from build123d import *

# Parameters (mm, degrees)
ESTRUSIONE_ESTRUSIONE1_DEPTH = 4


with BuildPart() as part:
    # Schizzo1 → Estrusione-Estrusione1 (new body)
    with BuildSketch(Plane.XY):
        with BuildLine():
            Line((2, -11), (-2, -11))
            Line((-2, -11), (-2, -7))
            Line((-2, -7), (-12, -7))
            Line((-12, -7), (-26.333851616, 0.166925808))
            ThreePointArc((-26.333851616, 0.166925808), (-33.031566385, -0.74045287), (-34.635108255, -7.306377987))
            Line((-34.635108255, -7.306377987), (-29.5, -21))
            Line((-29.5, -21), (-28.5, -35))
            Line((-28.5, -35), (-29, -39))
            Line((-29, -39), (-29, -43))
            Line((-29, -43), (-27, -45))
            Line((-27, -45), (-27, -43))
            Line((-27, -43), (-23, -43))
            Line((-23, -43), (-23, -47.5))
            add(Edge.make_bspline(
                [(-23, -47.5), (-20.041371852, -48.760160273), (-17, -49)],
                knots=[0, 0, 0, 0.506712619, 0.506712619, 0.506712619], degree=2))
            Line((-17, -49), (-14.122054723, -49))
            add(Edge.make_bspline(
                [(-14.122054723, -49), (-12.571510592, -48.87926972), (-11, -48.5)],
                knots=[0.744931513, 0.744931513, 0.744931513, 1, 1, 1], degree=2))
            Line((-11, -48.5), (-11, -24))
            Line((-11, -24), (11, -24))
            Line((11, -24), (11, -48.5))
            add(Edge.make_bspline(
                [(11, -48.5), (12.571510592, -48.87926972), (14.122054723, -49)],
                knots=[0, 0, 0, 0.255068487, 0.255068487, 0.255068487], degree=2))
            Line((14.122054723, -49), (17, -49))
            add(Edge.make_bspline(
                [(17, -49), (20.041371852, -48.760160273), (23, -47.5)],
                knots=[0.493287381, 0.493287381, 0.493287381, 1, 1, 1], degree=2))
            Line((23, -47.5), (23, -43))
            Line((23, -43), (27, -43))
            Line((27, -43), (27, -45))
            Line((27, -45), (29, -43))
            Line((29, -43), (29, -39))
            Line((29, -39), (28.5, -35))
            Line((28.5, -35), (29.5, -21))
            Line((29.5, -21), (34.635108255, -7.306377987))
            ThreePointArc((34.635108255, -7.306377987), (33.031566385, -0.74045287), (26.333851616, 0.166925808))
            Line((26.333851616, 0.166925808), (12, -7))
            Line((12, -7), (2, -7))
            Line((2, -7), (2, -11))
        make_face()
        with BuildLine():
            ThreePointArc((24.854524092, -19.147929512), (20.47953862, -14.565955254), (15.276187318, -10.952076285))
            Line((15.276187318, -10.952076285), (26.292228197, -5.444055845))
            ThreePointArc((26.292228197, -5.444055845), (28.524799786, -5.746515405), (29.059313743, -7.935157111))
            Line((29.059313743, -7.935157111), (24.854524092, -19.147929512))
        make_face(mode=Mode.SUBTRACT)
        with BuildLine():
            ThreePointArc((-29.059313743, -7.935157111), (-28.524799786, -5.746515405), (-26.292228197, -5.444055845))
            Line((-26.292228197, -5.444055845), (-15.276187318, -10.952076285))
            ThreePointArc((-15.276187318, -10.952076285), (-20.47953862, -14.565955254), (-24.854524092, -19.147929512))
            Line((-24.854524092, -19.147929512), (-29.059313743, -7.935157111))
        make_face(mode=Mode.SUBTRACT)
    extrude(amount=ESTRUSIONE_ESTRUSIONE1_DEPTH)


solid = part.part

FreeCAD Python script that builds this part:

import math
import FreeCAD as App
import Part
import Sketcher
from FreeCAD import Vector
Q = App.Units.Quantity

doc = App.newDocument("Part")
params = doc.addObject("Spreadsheet::Sheet", "Params")
for row, (alias, value) in enumerate([
    ("sketch1_radius", "6 mm"),
    ("sketch1_radius2", "6 mm"),
    ("sketch1_radius3", "2 mm"),
    ("sketch1_radius4", "2 mm"),
    ("sketch1_radius5", "31.5 mm"),
    ("pad1_length", "4 mm"),
], start=1):
    params.set(f"A{row}", alias)
    params.set(f"B{row}", "=" + value)
    params.setAlias(f"B{row}", alias)

body = doc.addObject("PartDesign::Body", "Body")

sketch1 = body.newObject("Sketcher::SketchObject", "Sketch")
sketch1.AttachmentSupport = (doc.getObject("XY_Plane"), [""])
sketch1.MapMode = "FlatFace"
sketch1.addGeometry([
    Part.LineSegment(Vector(2, -11, 0), Vector(-2, -11, 0)),
    Part.LineSegment(Vector(-2, -11, 0), Vector(-2, -7, 0)),
    Part.LineSegment(Vector(-2, -7, 0), Vector(-12, -7, 0)),
    Part.LineSegment(Vector(-12, -7, 0), Vector(-26.333852, 0.166926, 0)),
    Part.ArcOfCircle(Part.Circle(Vector(-29.017133, -5.199637, 0), Vector(0, 0, 1), 6), math.radians(63.434949), math.radians(200.556045)),
    Part.LineSegment(Vector(-34.635108, -7.306378, 0), Vector(-29.5, -21, 0)),
    Part.LineSegment(Vector(-29.5, -21, 0), Vector(-28.5, -35, 0)),
    Part.LineSegment(Vector(-28.5, -35, 0), Vector(-29, -39, 0)),
    Part.LineSegment(Vector(-29, -39, 0), Vector(-29, -43, 0)),
    Part.LineSegment(Vector(-29, -43, 0), Vector(-27, -45, 0)),
    Part.LineSegment(Vector(-27, -45, 0), Vector(-27, -43, 0)),
    Part.LineSegment(Vector(-27, -43, 0), Vector(-23, -43, 0)),
    Part.LineSegment(Vector(-23, -43, 0), Vector(-23, -47.5, 0)),
    Part.BSplineCurve([Vector(-23, -47.5, 0), Vector(-20.041372, -48.76016, 0), Vector(-17, -49, 0)], [3, 3], [0, 0.506712619], False, 2, [1, 1, 1], False),
    Part.LineSegment(Vector(-17, -49, 0), Vector(-14.122055, -49, 0)),
    Part.BSplineCurve([Vector(-14.122055, -49, 0), Vector(-12.571511, -48.87927, 0), Vector(-11, -48.5, 0)], [3, 3], [0.744931513, 1], False, 2, [1, 1, 1], False),
    Part.LineSegment(Vector(-11, -48.5, 0), Vector(-11, -24, 0)),
    Part.LineSegment(Vector(-11, -24, 0), Vector(11, -24, 0)),
    Part.LineSegment(Vector(11, -24, 0), Vector(11, -48.5, 0)),
    Part.BSplineCurve([Vector(11, -48.5, 0), Vector(12.571511, -48.87927, 0), Vector(14.122055, -49, 0)], [3, 3], [0, 0.255068487], False, 2, [1, 1, 1], False),
    Part.LineSegment(Vector(14.122055, -49, 0), Vector(17, -49, 0)),
    Part.BSplineCurve([Vector(17, -49, 0), Vector(20.041372, -48.76016, 0), Vector(23, -47.5, 0)], [3, 3], [0.493287381, 1], False, 2, [1, 1, 1], False),
    Part.LineSegment(Vector(23, -47.5, 0), Vector(23, -43, 0)),
    Part.LineSegment(Vector(23, -43, 0), Vector(27, -43, 0)),
    Part.LineSegment(Vector(27, -43, 0), Vector(27, -45, 0)),
    Part.LineSegment(Vector(27, -45, 0), Vector(29, -43, 0)),
    Part.LineSegment(Vector(29, -43, 0), Vector(29, -39, 0)),
    Part.LineSegment(Vector(29, -39, 0), Vector(28.5, -35, 0)),
    Part.LineSegment(Vector(28.5, -35, 0), Vector(29.5, -21, 0)),
    Part.LineSegment(Vector(29.5, -21, 0), Vector(34.635108, -7.306378, 0)),
    Part.ArcOfCircle(Part.Circle(Vector(29.017133, -5.199637, 0), Vector(0, 0, 1), 6), math.radians(-20.556045), math.radians(116.565051)),
    Part.LineSegment(Vector(26.333852, 0.166926, 0), Vector(12, -7, 0)),
    Part.LineSegment(Vector(12, -7, 0), Vector(2, -7, 0)),
    Part.LineSegment(Vector(2, -7, 0), Vector(2, -11, 0)),
    Part.LineSegment(Vector(-24.854524, -19.14793, 0), Vector(-29.059314, -7.935157, 0)),
    Part.ArcOfCircle(Part.Circle(Vector(-27.186655, -7.23291, 0), Vector(0, 0, 1), 2), math.radians(63.434949), math.radians(200.556045)),
    Part.LineSegment(Vector(-26.292228, -5.444056, 0), Vector(-15.276187, -10.952076, 0)),
    Part.ArcOfCircle(Part.Circle(Vector(0, -38.5, 0), Vector(0, 0, 1), 31.5), math.radians(119.009742), math.radians(142.09519)),
    Part.LineSegment(Vector(29.059314, -7.935157, 0), Vector(24.854524, -19.14793, 0)),
    Part.ArcOfCircle(Part.Circle(Vector(0, -38.5, 0), Vector(0, 0, 1), 31.5), math.radians(37.90481), math.radians(60.990258)),
    Part.LineSegment(Vector(15.276187, -10.952076, 0), Vector(26.292228, -5.444056, 0)),
    Part.ArcOfCircle(Part.Circle(Vector(27.186655, -7.23291, 0), Vector(0, 0, 1), 2), math.radians(-20.556045), math.radians(116.565051)),
], False)
sketch1.addConstraint([
    Sketcher.Constraint("Block", 13),
    Sketcher.Constraint("Block", 15),
    Sketcher.Constraint("Block", 19),
    Sketcher.Constraint("Block", 21),
    Sketcher.Constraint("Coincident", 0, 2, 1, 1),
    Sketcher.Constraint("Coincident", 1, 2, 2, 1),
    Sketcher.Constraint("Coincident", 2, 2, 3, 1),
    Sketcher.Constraint("Coincident", 3, 2, 4, 1),
    Sketcher.Constraint("Coincident", 4, 2, 5, 1),
    Sketcher.Constraint("Coincident", 5, 2, 6, 1),
    Sketcher.Constraint("Coincident", 6, 2, 7, 1),
    Sketcher.Constraint("Coincident", 7, 2, 8, 1),
    Sketcher.Constraint("Coincident", 8, 2, 9, 1),
    Sketcher.Constraint("Coincident", 9, 2, 10, 1),
    Sketcher.Constraint("Coincident", 10, 2, 11, 1),
    Sketcher.Constraint("Coincident", 11, 2, 12, 1),
    Sketcher.Constraint("Coincident", 12, 2, 13, 1),
    Sketcher.Constraint("Coincident", 13, 2, 14, 1),
    Sketcher.Constraint("Coincident", 14, 2, 15, 1),
    Sketcher.Constraint("Coincident", 15, 2, 16, 1),
    Sketcher.Constraint("Coincident", 16, 2, 17, 1),
    Sketcher.Constraint("Coincident", 17, 2, 18, 1),
    Sketcher.Constraint("Coincident", 18, 2, 19, 1),
    Sketcher.Constraint("Coincident", 19, 2, 20, 1),
    Sketcher.Constraint("Coincident", 20, 2, 21, 1),
    Sketcher.Constraint("Coincident", 21, 2, 22, 1),
    Sketcher.Constraint("Coincident", 22, 2, 23, 1),
    Sketcher.Constraint("Coincident", 23, 2, 24, 1),
    Sketcher.Constraint("Coincident", 24, 2, 25, 1),
    Sketcher.Constraint("Coincident", 25, 2, 26, 1),
    Sketcher.Constraint("Coincident", 26, 2, 27, 1),
    Sketcher.Constraint("Coincident", 27, 2, 28, 1),
    Sketcher.Constraint("Coincident", 28, 2, 29, 1),
    Sketcher.Constraint("Coincident", 29, 2, 30, 1),
    Sketcher.Constraint("Coincident", 30, 2, 31, 1),
    Sketcher.Constraint("Coincident", 31, 2, 32, 1),
    Sketcher.Constraint("Coincident", 32, 2, 33, 1),
    Sketcher.Constraint("Coincident", 33, 2, 0, 1),
    Sketcher.Constraint("Coincident", 34, 2, 35, 2),
    Sketcher.Constraint("Coincident", 35, 1, 36, 1),
    Sketcher.Constraint("Coincident", 36, 2, 37, 1),
    Sketcher.Constraint("Coincident", 37, 2, 34, 1),
    Sketcher.Constraint("Coincident", 38, 2, 39, 1),
    Sketcher.Constraint("Coincident", 39, 2, 40, 1),
    Sketcher.Constraint("Coincident", 40, 2, 41, 2),
    Sketcher.Constraint("Coincident", 41, 1, 38, 1),
    Sketcher.Constraint("Horizontal", 0),
    Sketcher.Constraint("Vertical", 1),
    Sketcher.Constraint("Horizontal", 2),
    Sketcher.Constraint("Vertical", 8),
    Sketcher.Constraint("Vertical", 10),
    Sketcher.Constraint("Horizontal", 11),
    Sketcher.Constraint("Vertical", 12),
    Sketcher.Constraint("Vertical", 16),
    Sketcher.Constraint("Horizontal", 17),
    Sketcher.Constraint("Vertical", 18),
    Sketcher.Constraint("Vertical", 22),
    Sketcher.Constraint("Horizontal", 23),
    Sketcher.Constraint("Vertical", 24),
    Sketcher.Constraint("Vertical", 26),
    Sketcher.Constraint("Horizontal", 32),
    Sketcher.Constraint("Vertical", 33),
    Sketcher.Constraint("Coincident", 39, 3, 37, 3),
    Sketcher.Constraint("PointOnObject", 37, 3, -2),
    Sketcher.Constraint("Radius", 4, Q("6 mm")),
    Sketcher.Constraint("Radius", 30, Q("6 mm")),
    Sketcher.Constraint("Radius", 35, Q("2 mm")),
    Sketcher.Constraint("Radius", 41, Q("2 mm")),
    Sketcher.Constraint("Radius", 37, Q("31.5 mm")),
    Sketcher.Constraint("Radius", 39, Q("31.5 mm")),
    Sketcher.Constraint("DistanceX", 0, 2, 0, 1, Q("4 mm")),
    Sketcher.Constraint("DistanceX", 2, 2, 2, 1, Q("10 mm")),
    Sketcher.Constraint("DistanceX", 11, 1, 11, 2, Q("4 mm")),
    Sketcher.Constraint("DistanceX", 23, 1, 23, 2, Q("4 mm")),
    Sketcher.Constraint("DistanceX", 32, 2, 32, 1, Q("10 mm")),
    Sketcher.Constraint("DistanceY", 1, 1, 1, 2, Q("4 mm")),
    Sketcher.Constraint("DistanceY", 8, 2, 8, 1, Q("4 mm")),
    Sketcher.Constraint("DistanceY", 10, 1, 10, 2, Q("2 mm")),
    Sketcher.Constraint("DistanceY", 24, 2, 24, 1, Q("2 mm")),
    Sketcher.Constraint("DistanceY", 26, 1, 26, 2, Q("4 mm")),
    Sketcher.Constraint("DistanceY", 33, 2, 33, 1, Q("4 mm")),
    Sketcher.Constraint("DistanceY", 12, 2, 12, 1, Q("4.5 mm")),
    Sketcher.Constraint("DistanceY", 16, 1, 16, 2, Q("24.5 mm")),
    Sketcher.Constraint("DistanceY", 22, 1, 22, 2, Q("4.5 mm")),
    Sketcher.Constraint("DistanceX", 0, 2, -1, 1, Q("2 mm")),
    Sketcher.Constraint("DistanceY", 0, 2, -1, 1, Q("11 mm")),
    Sketcher.Constraint("DistanceY", 5, 2, -1, 1, Q("21 mm")),
    Sketcher.Constraint("DistanceY", 6, 2, -1, 1, Q("35 mm")),
    Sketcher.Constraint("DistanceX", 7, 2, -1, 1, Q("29 mm")),
    Sketcher.Constraint("DistanceY", 7, 2, -1, 1, Q("39 mm")),
    Sketcher.Constraint("DistanceX", -1, 1, 25, 2, Q("29 mm")),
    Sketcher.Constraint("DistanceY", 25, 2, -1, 1, Q("43 mm")),
    Sketcher.Constraint("DistanceY", 27, 2, -1, 1, Q("35 mm")),
    Sketcher.Constraint("DistanceY", 28, 2, -1, 1, Q("21 mm")),
    Sketcher.Constraint("DistanceX", 5, 2, 6, 2, Q("1 mm")),
    Sketcher.Constraint("DistanceY", 18, 2, 37, 3, Q("10 mm")),
    Sketcher.Constraint("DistanceX", 27, 2, 28, 2, Q("1 mm")),
    Sketcher.Constraint("DistanceX", 5, 2, -1, 1, Q("29.5 mm")),
    Sketcher.Constraint("DistanceX", -1, 1, 27, 2, Q("28.5 mm")),
    Sketcher.Constraint("DistanceY", 34, 2, 35, 1, Q("2.491101 mm")),
    Sketcher.Constraint("DistanceY", 41, 1, 40, 2, Q("2.491101 mm")),
    Sketcher.Constraint("Distance", 36, Q("12.316308 mm")),
    Sketcher.Constraint("Distance", 40, Q("12.316308 mm")),
    Sketcher.Constraint("DistanceY", 35, 3, -1, 1, Q("7.23291 mm")),
    Sketcher.Constraint("DistanceY", 41, 3, -1, 1, Q("7.23291 mm")),
    Sketcher.Constraint("DistanceX", 3, 2, -1, 1, Q("26.333852 mm")),
    Sketcher.Constraint("DistanceX", 4, 2, -1, 1, Q("34.635108 mm")),
    Sketcher.Constraint("DistanceX", -1, 1, 29, 2, Q("34.635108 mm")),
    Sketcher.Constraint("DistanceX", -1, 1, 30, 2, Q("26.333852 mm")),
    Sketcher.Constraint("DistanceX", 35, 1, -1, 1, Q("26.292228 mm")),
    Sketcher.Constraint("DistanceY", 37, 2, -1, 1, Q("19.14793 mm")),
    Sketcher.Constraint("DistanceY", 38, 2, -1, 1, Q("19.14793 mm")),
    Sketcher.Constraint("DistanceX", -1, 1, 40, 2, Q("26.292228 mm")),
    Sketcher.Constraint("DistanceX", 35, 3, 30, 3, Q("56.203789 mm")),
    Sketcher.Constraint("DistanceX", 35, 3, 41, 3, Q("54.373311 mm")),
    Sketcher.Constraint("DistanceX", 4, 3, 41, 3, Q("56.203789 mm")),
    Sketcher.Constraint("DistanceX", 4, 3, 3, 2, Q("2.683282 mm")),
    Sketcher.Constraint("DistanceY", 34, 2, 4, 3, Q("2.73552 mm")),
    Sketcher.Constraint("DistanceY", 38, 2, 29, 2, Q("11.841552 mm")),
])
sketch1.setExpression("Constraints[64]", "Params.sketch1_radius")
sketch1.setExpression("Constraints[65]", "Params.sketch1_radius2")
sketch1.setExpression("Constraints[66]", "Params.sketch1_radius3")
sketch1.setExpression("Constraints[67]", "Params.sketch1_radius4")
sketch1.setExpression("Constraints[68]", "Params.sketch1_radius5")
pad1 = body.newObject("PartDesign::Pad", "Pad")
pad1.Profile = sketch1
pad1.setExpression("Length", "Params.pad1_length")

doc.recompute()
